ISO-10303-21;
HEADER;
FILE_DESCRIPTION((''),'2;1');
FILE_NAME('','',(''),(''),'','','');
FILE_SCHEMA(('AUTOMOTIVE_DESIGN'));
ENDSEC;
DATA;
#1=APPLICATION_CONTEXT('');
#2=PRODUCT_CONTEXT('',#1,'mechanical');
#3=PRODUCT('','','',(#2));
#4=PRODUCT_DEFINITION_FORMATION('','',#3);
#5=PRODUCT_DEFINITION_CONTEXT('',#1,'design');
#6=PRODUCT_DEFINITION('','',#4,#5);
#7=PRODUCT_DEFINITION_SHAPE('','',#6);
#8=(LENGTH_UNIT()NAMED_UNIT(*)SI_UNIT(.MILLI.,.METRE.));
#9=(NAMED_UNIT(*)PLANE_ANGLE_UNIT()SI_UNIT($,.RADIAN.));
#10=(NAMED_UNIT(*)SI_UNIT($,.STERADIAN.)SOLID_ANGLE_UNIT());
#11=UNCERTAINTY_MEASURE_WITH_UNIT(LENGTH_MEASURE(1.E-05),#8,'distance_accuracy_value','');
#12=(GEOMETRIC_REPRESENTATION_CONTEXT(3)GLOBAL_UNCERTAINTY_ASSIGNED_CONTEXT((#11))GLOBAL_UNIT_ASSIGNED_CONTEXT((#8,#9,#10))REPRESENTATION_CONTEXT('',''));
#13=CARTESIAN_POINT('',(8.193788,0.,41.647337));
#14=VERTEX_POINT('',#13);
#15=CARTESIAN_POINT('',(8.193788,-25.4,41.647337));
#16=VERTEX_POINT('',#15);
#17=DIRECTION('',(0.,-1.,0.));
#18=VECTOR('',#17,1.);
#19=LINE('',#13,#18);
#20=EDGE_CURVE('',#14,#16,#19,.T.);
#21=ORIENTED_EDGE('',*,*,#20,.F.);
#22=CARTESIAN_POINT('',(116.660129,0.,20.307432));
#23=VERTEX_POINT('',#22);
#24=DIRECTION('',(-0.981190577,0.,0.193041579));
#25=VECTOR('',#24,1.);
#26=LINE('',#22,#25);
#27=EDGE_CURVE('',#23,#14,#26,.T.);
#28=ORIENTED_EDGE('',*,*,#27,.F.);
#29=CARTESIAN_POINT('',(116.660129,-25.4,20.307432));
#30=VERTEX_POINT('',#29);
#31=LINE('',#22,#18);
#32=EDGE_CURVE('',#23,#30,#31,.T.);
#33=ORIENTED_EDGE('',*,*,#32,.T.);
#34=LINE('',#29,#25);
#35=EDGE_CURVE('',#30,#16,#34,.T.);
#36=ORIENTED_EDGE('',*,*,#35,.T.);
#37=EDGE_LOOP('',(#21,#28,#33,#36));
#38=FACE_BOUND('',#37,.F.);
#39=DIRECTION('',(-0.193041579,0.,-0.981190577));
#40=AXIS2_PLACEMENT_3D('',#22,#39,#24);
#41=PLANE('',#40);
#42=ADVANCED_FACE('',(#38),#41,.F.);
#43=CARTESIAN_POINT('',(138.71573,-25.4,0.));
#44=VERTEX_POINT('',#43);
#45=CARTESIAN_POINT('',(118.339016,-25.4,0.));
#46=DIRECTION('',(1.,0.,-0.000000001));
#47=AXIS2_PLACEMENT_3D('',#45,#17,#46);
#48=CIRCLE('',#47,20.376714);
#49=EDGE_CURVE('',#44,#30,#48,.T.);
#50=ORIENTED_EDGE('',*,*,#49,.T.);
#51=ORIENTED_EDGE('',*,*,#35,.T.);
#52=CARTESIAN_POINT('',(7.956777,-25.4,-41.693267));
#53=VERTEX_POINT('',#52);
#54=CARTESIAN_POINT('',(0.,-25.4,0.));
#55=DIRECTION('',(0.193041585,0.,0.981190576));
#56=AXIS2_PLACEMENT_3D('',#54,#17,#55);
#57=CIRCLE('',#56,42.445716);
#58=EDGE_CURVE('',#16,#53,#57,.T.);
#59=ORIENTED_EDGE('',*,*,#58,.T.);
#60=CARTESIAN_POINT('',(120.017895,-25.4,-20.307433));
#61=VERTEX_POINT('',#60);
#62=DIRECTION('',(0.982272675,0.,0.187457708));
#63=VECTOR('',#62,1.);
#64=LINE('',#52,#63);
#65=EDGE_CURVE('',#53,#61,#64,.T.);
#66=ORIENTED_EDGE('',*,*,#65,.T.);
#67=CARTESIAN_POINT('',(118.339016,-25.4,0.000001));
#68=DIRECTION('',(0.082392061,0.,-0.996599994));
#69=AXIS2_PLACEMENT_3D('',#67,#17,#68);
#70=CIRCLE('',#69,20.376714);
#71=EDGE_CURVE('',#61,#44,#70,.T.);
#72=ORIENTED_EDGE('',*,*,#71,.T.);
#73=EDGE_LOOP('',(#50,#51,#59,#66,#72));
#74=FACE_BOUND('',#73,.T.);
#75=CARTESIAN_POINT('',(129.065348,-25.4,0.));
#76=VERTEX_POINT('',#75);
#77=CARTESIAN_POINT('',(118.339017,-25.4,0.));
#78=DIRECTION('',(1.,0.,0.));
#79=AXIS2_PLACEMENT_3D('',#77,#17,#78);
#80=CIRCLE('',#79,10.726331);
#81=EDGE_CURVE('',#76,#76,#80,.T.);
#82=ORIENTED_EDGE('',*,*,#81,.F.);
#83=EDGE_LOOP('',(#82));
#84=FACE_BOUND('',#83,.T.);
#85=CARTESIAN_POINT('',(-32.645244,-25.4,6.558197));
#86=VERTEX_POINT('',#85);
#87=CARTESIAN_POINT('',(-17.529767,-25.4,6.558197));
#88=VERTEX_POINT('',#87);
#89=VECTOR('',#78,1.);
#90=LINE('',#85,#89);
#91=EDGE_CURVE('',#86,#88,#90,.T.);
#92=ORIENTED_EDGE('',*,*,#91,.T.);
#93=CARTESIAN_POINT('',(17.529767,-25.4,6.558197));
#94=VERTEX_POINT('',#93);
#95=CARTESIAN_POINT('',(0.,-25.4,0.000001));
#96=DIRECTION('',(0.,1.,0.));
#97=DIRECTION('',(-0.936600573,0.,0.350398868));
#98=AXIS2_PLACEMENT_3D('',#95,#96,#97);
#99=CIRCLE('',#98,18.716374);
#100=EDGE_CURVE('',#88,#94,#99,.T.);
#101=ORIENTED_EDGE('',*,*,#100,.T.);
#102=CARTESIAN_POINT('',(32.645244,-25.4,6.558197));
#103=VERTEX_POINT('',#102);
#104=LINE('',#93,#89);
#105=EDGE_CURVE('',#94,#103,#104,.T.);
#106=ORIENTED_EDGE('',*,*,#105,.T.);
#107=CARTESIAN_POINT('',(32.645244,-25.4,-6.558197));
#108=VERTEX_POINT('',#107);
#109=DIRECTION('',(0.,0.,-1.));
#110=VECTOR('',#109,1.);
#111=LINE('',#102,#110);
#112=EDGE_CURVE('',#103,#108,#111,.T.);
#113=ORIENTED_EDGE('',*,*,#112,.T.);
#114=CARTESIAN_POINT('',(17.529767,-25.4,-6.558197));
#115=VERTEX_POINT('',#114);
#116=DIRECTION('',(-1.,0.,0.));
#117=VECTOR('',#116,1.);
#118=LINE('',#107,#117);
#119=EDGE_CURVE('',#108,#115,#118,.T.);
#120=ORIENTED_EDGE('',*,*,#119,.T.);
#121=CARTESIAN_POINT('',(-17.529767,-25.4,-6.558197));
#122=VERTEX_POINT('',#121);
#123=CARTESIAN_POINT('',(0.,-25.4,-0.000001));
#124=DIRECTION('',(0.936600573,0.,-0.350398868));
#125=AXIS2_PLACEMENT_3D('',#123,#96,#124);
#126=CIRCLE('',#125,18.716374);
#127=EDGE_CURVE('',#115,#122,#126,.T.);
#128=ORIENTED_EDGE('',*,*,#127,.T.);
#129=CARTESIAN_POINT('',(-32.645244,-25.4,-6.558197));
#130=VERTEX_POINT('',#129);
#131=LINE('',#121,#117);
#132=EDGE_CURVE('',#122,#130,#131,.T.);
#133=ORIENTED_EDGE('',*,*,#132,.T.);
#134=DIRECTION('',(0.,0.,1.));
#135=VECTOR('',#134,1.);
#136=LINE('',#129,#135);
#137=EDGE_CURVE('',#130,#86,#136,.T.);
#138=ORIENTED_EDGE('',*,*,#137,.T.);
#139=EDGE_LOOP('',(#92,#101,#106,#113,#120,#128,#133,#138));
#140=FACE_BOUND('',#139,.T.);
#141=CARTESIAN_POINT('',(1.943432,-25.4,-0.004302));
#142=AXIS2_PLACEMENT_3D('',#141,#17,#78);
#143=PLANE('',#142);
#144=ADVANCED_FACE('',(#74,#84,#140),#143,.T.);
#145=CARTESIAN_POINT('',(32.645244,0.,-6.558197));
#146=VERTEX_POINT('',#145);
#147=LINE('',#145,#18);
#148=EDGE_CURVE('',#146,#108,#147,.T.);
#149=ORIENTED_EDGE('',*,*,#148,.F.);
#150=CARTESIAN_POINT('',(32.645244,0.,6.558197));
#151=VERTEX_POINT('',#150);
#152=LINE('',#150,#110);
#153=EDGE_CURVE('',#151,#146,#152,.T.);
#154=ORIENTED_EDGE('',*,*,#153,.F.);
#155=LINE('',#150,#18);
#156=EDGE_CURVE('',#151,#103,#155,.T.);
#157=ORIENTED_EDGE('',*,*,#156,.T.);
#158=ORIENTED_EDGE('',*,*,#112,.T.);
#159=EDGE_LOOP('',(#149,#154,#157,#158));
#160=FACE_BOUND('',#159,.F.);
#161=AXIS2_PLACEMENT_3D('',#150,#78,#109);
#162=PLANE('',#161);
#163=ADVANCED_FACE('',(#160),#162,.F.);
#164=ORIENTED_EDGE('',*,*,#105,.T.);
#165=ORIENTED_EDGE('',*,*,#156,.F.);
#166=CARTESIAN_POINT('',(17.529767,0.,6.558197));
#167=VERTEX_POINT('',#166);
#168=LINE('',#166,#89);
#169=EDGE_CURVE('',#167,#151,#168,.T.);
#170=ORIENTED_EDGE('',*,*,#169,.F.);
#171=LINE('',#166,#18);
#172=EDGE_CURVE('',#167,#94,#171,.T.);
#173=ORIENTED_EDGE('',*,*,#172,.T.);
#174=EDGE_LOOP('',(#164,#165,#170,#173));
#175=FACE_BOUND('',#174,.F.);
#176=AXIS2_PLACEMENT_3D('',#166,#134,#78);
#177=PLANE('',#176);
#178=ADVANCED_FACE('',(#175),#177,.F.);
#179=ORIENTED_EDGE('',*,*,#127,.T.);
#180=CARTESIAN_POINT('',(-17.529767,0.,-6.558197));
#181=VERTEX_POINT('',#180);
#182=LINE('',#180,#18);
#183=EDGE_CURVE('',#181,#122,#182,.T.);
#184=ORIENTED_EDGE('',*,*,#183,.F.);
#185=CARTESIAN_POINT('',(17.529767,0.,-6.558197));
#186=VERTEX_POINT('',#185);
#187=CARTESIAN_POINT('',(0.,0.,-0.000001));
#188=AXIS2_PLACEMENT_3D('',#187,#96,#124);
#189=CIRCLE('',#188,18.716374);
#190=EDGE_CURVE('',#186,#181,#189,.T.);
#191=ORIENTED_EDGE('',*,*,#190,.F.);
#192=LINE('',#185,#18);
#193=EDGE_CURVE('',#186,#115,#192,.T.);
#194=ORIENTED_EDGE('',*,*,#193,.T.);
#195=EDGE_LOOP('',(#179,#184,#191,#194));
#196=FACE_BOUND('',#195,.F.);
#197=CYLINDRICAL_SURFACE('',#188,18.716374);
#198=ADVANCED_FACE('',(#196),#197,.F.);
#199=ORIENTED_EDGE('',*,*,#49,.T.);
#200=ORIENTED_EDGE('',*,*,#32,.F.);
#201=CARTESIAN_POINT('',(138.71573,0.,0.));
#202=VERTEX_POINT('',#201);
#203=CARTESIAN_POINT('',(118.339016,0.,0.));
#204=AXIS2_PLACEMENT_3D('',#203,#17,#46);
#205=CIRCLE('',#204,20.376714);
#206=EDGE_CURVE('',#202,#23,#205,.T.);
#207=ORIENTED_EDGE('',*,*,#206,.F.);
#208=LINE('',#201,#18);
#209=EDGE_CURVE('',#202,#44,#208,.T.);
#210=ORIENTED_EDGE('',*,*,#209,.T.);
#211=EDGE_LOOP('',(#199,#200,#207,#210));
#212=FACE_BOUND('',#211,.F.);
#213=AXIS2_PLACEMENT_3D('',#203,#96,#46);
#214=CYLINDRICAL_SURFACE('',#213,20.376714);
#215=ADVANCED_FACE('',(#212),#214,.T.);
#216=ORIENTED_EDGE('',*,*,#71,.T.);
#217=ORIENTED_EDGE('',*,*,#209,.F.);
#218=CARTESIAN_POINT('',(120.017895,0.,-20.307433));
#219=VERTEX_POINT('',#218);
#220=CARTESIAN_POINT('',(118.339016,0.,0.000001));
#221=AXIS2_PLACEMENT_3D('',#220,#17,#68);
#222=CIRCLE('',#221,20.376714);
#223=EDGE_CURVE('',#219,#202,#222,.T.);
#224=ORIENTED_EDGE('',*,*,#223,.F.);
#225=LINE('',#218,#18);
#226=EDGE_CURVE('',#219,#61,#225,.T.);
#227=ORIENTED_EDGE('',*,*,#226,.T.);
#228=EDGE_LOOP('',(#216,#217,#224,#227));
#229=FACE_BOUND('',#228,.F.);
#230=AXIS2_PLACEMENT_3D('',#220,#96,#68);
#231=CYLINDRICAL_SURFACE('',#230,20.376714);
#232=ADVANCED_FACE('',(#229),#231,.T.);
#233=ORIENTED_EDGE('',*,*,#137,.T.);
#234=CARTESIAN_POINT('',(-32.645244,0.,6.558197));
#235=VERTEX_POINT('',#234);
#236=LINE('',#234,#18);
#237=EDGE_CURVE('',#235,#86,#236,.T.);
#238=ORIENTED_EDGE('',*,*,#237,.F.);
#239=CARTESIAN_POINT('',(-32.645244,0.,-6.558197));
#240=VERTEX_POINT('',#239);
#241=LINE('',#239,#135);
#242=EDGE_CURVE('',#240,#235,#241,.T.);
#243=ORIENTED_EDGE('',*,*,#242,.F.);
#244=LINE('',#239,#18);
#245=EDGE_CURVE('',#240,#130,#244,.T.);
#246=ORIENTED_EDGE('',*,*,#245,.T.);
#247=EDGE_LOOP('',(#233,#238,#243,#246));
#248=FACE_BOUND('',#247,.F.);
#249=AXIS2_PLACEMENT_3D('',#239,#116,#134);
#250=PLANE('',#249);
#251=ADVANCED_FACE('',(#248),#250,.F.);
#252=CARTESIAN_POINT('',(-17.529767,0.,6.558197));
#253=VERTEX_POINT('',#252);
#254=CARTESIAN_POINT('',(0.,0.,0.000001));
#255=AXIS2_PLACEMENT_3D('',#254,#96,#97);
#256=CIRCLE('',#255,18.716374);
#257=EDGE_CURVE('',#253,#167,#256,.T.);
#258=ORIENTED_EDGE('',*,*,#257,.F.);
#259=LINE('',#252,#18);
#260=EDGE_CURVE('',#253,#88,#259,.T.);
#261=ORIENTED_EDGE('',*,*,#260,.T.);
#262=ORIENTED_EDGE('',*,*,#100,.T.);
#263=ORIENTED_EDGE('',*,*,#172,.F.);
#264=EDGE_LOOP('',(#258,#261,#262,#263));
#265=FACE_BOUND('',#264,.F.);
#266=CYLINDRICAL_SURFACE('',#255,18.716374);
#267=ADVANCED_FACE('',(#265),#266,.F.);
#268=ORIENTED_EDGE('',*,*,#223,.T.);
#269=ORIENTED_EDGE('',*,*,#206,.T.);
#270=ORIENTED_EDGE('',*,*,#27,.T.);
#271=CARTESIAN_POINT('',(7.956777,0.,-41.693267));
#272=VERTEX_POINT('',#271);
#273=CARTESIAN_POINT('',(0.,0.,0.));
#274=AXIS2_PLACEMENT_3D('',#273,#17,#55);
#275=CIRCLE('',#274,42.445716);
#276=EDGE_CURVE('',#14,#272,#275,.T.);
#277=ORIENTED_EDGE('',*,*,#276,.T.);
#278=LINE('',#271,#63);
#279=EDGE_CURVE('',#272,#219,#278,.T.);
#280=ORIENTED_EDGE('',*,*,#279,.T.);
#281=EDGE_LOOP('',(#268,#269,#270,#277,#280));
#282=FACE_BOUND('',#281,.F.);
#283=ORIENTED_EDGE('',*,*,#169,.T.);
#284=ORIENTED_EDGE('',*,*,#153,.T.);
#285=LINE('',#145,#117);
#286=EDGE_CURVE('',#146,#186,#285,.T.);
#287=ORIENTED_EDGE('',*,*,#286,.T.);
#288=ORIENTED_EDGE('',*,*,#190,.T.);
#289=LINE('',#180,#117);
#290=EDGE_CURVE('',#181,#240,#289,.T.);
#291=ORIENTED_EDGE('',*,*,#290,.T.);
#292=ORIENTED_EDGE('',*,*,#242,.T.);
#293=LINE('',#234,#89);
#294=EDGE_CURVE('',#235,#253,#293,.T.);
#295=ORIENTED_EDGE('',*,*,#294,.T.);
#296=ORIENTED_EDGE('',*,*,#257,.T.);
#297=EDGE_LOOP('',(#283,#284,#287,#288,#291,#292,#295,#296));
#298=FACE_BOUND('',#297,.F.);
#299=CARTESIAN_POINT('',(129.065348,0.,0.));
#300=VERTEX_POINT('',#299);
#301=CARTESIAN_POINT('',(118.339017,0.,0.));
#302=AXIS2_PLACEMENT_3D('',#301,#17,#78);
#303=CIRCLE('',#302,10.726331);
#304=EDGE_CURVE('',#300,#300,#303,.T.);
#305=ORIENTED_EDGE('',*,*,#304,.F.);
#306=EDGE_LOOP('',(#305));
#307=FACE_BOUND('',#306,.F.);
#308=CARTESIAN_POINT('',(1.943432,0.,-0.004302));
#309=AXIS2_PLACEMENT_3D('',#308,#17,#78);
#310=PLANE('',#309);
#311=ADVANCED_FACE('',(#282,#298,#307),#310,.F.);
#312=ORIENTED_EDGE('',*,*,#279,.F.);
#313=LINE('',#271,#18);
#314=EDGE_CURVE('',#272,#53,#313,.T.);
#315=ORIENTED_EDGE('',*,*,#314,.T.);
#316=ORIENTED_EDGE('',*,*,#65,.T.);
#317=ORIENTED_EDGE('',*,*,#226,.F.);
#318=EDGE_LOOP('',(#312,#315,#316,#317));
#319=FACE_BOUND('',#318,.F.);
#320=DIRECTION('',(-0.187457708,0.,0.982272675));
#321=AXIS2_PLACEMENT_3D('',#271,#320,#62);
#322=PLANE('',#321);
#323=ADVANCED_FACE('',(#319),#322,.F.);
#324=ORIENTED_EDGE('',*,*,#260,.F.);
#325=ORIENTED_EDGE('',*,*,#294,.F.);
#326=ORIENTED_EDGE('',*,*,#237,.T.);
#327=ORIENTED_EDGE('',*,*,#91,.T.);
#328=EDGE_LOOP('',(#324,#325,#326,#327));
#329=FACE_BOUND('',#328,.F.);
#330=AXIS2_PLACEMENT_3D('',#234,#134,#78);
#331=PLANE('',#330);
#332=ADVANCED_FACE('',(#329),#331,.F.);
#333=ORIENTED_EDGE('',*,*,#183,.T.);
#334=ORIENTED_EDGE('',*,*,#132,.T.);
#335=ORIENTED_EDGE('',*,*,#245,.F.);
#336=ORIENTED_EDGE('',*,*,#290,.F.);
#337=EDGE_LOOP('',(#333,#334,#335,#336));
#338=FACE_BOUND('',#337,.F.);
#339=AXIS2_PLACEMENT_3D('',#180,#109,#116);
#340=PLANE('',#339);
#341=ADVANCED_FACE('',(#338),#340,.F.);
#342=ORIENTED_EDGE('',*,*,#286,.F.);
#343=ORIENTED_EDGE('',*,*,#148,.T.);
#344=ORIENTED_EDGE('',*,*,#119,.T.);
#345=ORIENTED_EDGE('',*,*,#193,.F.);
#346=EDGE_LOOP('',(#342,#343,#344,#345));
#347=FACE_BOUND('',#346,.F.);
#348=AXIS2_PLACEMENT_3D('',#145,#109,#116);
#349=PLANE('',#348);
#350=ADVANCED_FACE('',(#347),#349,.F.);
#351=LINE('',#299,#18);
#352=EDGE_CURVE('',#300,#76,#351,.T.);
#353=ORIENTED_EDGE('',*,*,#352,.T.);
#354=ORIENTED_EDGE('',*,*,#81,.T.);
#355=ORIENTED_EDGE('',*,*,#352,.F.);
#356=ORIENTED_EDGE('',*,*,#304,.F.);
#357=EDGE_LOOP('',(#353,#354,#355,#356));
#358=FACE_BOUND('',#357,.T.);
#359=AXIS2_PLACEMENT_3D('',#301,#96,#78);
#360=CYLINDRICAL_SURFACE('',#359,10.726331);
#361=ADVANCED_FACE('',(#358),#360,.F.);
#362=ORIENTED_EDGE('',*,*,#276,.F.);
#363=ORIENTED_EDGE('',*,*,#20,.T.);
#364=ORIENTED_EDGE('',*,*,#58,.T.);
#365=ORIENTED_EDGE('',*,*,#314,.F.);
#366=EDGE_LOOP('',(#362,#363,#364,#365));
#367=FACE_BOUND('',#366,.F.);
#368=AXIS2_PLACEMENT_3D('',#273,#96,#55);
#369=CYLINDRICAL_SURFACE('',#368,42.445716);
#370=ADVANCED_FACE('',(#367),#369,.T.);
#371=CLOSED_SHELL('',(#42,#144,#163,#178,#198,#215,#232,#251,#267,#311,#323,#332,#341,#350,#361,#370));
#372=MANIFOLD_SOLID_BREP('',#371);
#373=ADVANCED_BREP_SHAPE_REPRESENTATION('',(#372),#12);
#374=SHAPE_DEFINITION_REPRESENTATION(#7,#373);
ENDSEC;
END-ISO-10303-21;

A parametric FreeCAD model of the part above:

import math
import FreeCAD as App
import Part
import Sketcher
from FreeCAD import Vector
Q = App.Units.Quantity

doc = App.newDocument("Part")
body = doc.addObject("PartDesign::Body", "Body")

# Sketch on XZ plane
sketch1 = body.newObject("Sketcher::SketchObject", "Sketch")
sketch1.AttachmentSupport = (doc.getObject("XZ_Plane"), [""])
sketch1.MapMode = "FlatFace"
sketch1.addGeometry(Part.ArcOfCircle(Part.Circle(Vector(0, 0, 0), Vector(0, 0, 1), 42), math.radians(79), math.radians(281)), False)
sketch1.addGeometry(Part.LineSegment(Vector(8, -42, 0), Vector(120, -20, 0)), False)
sketch1.addGeometry(Part.ArcOfCircle(Part.Circle(Vector(118, 0, 0), Vector(0, 0, 1), 20), math.radians(-85), math.radians(0)), False)
sketch1.addGeometry(Part.ArcOfCircle(Part.Circle(Vector(118, 0, 0), Vector(0, 0, 1), 20), math.radians(0), math.radians(95)), False)
sketch1.addGeometry(Part.LineSegment(Vector(117, 20, 0), Vector(8, 42, 0)), False)
sketch1.addGeometry(Part.LineSegment(Vector(-33, 7, 0), Vector(-18, 7, 0)), False)
sketch1.addGeometry(Part.ArcOfCircle(Part.Circle(Vector(0, 0, 0), Vector(0, 0, 1), 19), math.radians(21), math.radians(159)), False)
sketch1.addGeometry(Part.LineSegment(Vector(18, 7, 0), Vector(33, 7, 0)), False)
sketch1.addGeometry(Part.LineSegment(Vector(33, 7, 0), Vector(33, -7, 0)), False)
sketch1.addGeometry(Part.LineSegment(Vector(33, -7, 0), Vector(18, -7, 0)), False)
sketch1.addGeometry(Part.ArcOfCircle(Part.Circle(Vector(0, 0, 0), Vector(0, 0, 1), 19), math.radians(-159), math.radians(-21)), False)
sketch1.addGeometry(Part.LineSegment(Vector(-18, -7, 0), Vector(-33, -7, 0)), False)
sketch1.addGeometry(Part.LineSegment(Vector(-33, -7, 0), Vector(-33, 7, 0)), False)
sketch1.addGeometry(Part.Circle(Vector(118, 0, 0), Vector(0, 0, 1), 11), False)
sketch1.addConstraint(Sketcher.Constraint("Tangent", 0, 2, 1, 1))
sketch1.addConstraint(Sketcher.Constraint("Coincident", 1, 2, 2, 1))
sketch1.addConstraint(Sketcher.Constraint("Tangent", 2, 2, 3, 1))
sketch1.addConstraint(Sketcher.Constraint("Coincident", 3, 2, 4, 1))
sketch1.addConstraint(Sketcher.Constraint("Tangent", 4, 2, 0, 1))
sketch1.addConstraint(Sketcher.Constraint("Coincident", 5, 2, 6, 2))
sketch1.addConstraint(Sketcher.Constraint("Coincident", 6, 1, 7, 1))
sketch1.addConstraint(Sketcher.Constraint("Coincident", 7, 2, 8, 1))
sketch1.addConstraint(Sketcher.Constraint("Coincident", 8, 2, 9, 1))
sketch1.addConstraint(Sketcher.Constraint("Coincident", 9, 2, 10, 2))
sketch1.addConstraint(Sketcher.Constraint("Coincident", 10, 1, 11, 1))
sketch1.addConstraint(Sketcher.Constraint("Coincident", 11, 2, 12, 1))
sketch1.addConstraint(Sketcher.Constraint("Coincident", 12, 2, 5, 1))
sketch1.addConstraint(Sketcher.Constraint("Horizontal", 5))
sketch1.addConstraint(Sketcher.Constraint("Horizontal", 7))
sketch1.addConstraint(Sketcher.Constraint("Vertical", 8))
sketch1.addConstraint(Sketcher.Constraint("Horizontal", 9))
sketch1.addConstraint(Sketcher.Constraint("Horizontal", 11))
sketch1.addConstraint(Sketcher.Constraint("Vertical", 12))
sketch1.addConstraint(Sketcher.Constraint("Coincident", 0, 3, -1, 1))
sketch1.addConstraint(Sketcher.Constraint("Coincident", 6, 3, -1, 1))
sketch1.addConstraint(Sketcher.Constraint("Coincident", 10, 3, -1, 1))
sketch1.addConstraint(Sketcher.Constraint("Coincident", 13, 3, 2, 3))
sketch1.addConstraint(Sketcher.Constraint("Equal", 2, 3))
sketch1.addConstraint(Sketcher.Constraint("Equal", 6, 10))
sketch1.addConstraint(Sketcher.Constraint("Symmetric", 7, 2, 11, 2, -1, 1))
sketch1.addConstraint(Sketcher.Constraint("PointOnObject", 2, 3, -1))
sketch1.addConstraint(Sketcher.Constraint("PointOnObject", 2, 2, -1))
sketch1.addConstraint(Sketcher.Constraint("Horizontal", 5, 2, 6, 1))
sketch1.addConstraint(Sketcher.Constraint("Horizontal", 9, 2, 10, 1))
sketch1.addConstraint(Sketcher.Constraint("Diameter", 13, Q("21.452662 mm")))
sketch1.addConstraint(Sketcher.Constraint("Radius", 0, Q("42.445716 mm")))
sketch1.addConstraint(Sketcher.Constraint("Radius", 2, Q("20.376714 mm")))
sketch1.addConstraint(Sketcher.Constraint("Radius", 6, Q("18.716374 mm")))
sketch1.addConstraint(Sketcher.Constraint("DistanceX", 3, 2, 2, 2, Q("22.055601 mm")))
sketch1.addConstraint(Sketcher.Constraint("Distance", 4, Q("110.545641 mm")))
sketch1.addConstraint(Sketcher.Constraint("DistanceX", 5, 1, 5, 2, Q("15.115477 mm")))
sketch1.addConstraint(Sketcher.Constraint("DistanceY", 8, 2, 8, 1, Q("13.116394 mm")))
sketch1.addConstraint(Sketcher.Constraint("DistanceX", 3, 3, 1, 2, Q("1.678879 mm")))
pad1 = body.newObject("PartDesign::Pad", "Pad")
pad1.Profile = sketch1
pad1.Length = Q("1 in")

doc.recompute()
